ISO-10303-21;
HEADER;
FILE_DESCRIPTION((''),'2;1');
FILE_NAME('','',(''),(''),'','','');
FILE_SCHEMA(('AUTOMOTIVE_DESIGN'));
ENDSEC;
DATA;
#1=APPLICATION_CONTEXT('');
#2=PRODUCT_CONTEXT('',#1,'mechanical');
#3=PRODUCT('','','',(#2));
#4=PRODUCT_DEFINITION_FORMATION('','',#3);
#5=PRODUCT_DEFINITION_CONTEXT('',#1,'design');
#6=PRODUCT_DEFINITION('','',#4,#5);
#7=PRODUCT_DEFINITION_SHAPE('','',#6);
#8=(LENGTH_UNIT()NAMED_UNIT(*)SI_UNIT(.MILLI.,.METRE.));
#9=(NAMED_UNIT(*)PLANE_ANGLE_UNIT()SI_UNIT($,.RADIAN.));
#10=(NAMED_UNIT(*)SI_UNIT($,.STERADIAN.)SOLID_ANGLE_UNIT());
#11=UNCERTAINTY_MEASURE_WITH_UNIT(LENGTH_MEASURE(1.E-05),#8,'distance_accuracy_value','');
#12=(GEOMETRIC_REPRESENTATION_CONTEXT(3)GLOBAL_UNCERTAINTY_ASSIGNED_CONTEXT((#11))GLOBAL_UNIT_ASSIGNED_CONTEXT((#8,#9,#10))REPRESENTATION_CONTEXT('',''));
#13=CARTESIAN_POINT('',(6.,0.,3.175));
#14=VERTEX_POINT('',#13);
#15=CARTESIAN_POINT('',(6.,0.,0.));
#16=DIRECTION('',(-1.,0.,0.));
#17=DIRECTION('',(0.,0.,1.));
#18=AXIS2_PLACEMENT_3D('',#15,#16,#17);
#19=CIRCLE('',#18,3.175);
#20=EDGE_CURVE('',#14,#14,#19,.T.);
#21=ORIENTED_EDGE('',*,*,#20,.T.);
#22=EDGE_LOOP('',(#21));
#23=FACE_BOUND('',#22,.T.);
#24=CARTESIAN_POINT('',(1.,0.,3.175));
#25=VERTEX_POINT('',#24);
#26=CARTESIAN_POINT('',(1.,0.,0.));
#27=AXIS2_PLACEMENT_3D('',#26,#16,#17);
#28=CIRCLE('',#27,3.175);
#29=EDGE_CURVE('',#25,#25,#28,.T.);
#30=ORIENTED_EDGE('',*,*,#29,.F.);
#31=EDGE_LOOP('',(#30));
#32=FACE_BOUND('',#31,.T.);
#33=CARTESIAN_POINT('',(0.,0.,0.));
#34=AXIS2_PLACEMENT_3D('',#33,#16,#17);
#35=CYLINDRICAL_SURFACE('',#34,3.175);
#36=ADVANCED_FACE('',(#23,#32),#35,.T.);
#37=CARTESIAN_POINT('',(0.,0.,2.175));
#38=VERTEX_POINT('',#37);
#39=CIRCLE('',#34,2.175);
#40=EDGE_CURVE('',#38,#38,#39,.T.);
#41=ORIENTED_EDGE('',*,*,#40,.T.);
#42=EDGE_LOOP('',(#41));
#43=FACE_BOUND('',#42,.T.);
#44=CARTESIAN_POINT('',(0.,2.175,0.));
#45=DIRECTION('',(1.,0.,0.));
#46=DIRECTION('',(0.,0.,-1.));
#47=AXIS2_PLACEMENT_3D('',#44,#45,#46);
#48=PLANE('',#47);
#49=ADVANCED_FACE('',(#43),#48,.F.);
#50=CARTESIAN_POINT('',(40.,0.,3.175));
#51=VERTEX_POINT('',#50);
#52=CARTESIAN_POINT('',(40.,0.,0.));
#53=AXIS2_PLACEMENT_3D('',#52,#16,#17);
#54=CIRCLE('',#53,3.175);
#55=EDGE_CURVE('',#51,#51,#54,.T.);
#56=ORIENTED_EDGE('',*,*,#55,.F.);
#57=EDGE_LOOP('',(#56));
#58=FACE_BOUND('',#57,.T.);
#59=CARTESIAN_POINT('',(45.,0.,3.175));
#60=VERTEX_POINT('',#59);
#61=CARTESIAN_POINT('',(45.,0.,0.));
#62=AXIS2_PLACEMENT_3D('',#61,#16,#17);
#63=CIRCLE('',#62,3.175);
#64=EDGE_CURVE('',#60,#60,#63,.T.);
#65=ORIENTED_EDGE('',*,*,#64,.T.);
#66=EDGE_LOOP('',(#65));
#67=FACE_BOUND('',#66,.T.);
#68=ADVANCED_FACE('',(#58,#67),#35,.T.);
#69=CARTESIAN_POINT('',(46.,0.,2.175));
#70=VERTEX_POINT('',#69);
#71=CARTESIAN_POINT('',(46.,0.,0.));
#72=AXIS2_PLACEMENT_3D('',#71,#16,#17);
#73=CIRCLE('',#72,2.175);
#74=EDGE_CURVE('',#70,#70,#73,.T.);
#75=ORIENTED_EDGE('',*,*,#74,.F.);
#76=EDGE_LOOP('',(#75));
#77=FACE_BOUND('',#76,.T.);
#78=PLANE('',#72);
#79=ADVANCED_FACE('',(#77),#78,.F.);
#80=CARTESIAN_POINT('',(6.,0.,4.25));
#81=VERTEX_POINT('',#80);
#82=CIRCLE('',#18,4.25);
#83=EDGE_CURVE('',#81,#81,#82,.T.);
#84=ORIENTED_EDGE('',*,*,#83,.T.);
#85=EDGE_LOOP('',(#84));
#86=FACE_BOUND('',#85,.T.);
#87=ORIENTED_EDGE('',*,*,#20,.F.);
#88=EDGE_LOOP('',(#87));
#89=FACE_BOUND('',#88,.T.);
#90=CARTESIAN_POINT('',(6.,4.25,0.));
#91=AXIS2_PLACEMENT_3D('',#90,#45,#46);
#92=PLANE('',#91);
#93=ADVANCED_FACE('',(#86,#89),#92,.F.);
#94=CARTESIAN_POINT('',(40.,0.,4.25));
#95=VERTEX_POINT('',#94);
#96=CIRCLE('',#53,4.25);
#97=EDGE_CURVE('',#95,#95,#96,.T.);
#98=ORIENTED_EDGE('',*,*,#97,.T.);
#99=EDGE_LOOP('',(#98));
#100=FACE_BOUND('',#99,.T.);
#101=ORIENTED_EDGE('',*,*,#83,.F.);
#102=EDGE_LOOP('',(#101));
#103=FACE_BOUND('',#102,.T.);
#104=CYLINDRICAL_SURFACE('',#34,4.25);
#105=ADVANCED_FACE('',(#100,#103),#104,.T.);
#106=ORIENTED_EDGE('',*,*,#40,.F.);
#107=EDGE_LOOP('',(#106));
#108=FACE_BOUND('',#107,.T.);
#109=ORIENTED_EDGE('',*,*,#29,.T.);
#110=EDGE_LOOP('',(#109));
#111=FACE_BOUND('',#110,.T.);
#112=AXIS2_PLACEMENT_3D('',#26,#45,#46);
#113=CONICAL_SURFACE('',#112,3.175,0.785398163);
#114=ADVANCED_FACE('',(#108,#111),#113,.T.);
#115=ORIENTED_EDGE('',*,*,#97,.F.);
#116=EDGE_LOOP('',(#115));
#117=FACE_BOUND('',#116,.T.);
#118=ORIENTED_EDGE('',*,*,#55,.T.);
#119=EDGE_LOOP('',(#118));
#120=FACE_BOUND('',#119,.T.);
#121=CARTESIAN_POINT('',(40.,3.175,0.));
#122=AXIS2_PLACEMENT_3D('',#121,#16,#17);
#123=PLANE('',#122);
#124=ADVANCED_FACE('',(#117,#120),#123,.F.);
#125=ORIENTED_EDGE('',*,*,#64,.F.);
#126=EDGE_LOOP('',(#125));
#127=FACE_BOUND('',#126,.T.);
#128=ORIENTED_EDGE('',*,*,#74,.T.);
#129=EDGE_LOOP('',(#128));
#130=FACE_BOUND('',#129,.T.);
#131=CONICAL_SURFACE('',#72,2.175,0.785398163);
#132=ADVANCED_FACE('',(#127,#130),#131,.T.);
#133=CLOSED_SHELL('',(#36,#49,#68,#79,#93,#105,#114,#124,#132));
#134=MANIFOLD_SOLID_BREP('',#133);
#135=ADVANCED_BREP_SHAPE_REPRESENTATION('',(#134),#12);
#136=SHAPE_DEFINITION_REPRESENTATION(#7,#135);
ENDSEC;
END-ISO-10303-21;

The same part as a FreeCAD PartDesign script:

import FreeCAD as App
import Part
import Sketcher
Q = App.Units.Quantity

doc = App.newDocument("Part")
body = doc.addObject("PartDesign::Body", "Body")

# Sketch on XY plane
sketch1 = doc.addObject("Sketcher::SketchObject", "Sketch")
body.addObject(sketch1)
sketch1.AttachmentSupport = (doc.XY_Plane, [""])
sketch1.MapMode = "FlatFace"
sketch1.addGeometry(Part.LineSegment(App.Vector(0, 0, 0), App.Vector(46, 0, 0)), False)
sketch1.addGeometry(Part.LineSegment(App.Vector(46, 0, 0), App.Vector(46, 2.175, 0)), False)
sketch1.addGeometry(Part.LineSegment(App.Vector(46, 2.175, 0), App.Vector(45, 3.175, 0)), False)
sketch1.addGeometry(Part.LineSegment(App.Vector(45, 3.175, 0), App.Vector(40, 3.175, 0)), False)
sketch1.addGeometry(Part.LineSegment(App.Vector(40, 3.175, 0), App.Vector(40, 4.25, 0)), False)
sketch1.addGeometry(Part.LineSegment(App.Vector(40, 4.25, 0), App.Vector(6, 4.25, 0)), False)
sketch1.addGeometry(Part.LineSegment(App.Vector(6, 4.25, 0), App.Vector(6, 3.175, 0)), False)
sketch1.addGeometry(Part.LineSegment(App.Vector(6, 3.175, 0), App.Vector(1, 3.175, 0)), False)
sketch1.addGeometry(Part.LineSegment(App.Vector(1, 3.175, 0), App.Vector(0, 2.175, 0)), False)
sketch1.addGeometry(Part.LineSegment(App.Vector(0, 2.175, 0), App.Vector(0, 0, 0)), False)
sketch1.addConstraint(Sketcher.Constraint("Coincident", 0, 2, 1, 1))
sketch1.addConstraint(Sketcher.Constraint("Coincident", 1, 2, 2, 1))
sketch1.addConstraint(Sketcher.Constraint("Coincident", 2, 2, 3, 1))
sketch1.addConstraint(Sketcher.Constraint("Coincident", 3, 2, 4, 1))
sketch1.addConstraint(Sketcher.Constraint("Coincident", 4, 2, 5, 1))
sketch1.addConstraint(Sketcher.Constraint("Coincident", 5, 2, 6, 1))
sketch1.addConstraint(Sketcher.Constraint("Coincident", 6, 2, 7, 1))
sketch1.addConstraint(Sketcher.Constraint("Coincident", 7, 2, 8, 1))
sketch1.addConstraint(Sketcher.Constraint("Coincident", 8, 2, 9, 1))
sketch1.addConstraint(Sketcher.Constraint("Coincident", 9, 2, 0, 1))
sketch1.addConstraint(Sketcher.Constraint("Horizontal", 0))
sketch1.addConstraint(Sketcher.Constraint("Vertical", 1))
sketch1.addConstraint(Sketcher.Constraint("Horizontal", 3))
sketch1.addConstraint(Sketcher.Constraint("Vertical", 4))
sketch1.addConstraint(Sketcher.Constraint("Horizontal", 5))
sketch1.addConstraint(Sketcher.Constraint("Vertical", 6))
sketch1.addConstraint(Sketcher.Constraint("Horizontal", 7))
sketch1.addConstraint(Sketcher.Constraint("Vertical", 9))
sketch1.addConstraint(Sketcher.Constraint("Coincident", 9, 2, -1, 1))
sketch1.addConstraint(Sketcher.Constraint("Perpendicular", 2, 8))
sketch1.addConstraint(Sketcher.Constraint("Horizontal", 3, 2, 6, 2))
sketch1.addConstraint(Sketcher.Constraint("Horizontal", 1, 2, 8, 2))
sketch1.addConstraint(Sketcher.Constraint("Equal", 3, 7))
sketch1.addConstraint(Sketcher.Constraint("Equal", 2, 8))
sketch1.addConstraint(Sketcher.Constraint("DistanceX", 0, 1, 0, 2, Q("46 mm")))
sketch1.addConstraint(Sketcher.Constraint("DistanceX", 3, 2, 3, 1, Q("5 mm")))
sketch1.addConstraint(Sketcher.Constraint("DistanceX", 5, 2, 5, 1, Q("34 mm")))
sketch1.addConstraint(Sketcher.Constraint("DistanceY", 1, 1, 1, 2, Q("2.175 mm")))
sketch1.addConstraint(Sketcher.Constraint("DistanceY", 4, 1, 4, 2, Q("1.075 mm")))
revolution = doc.addObject("PartDesign::Revolution", "Revolution")
body.addObject(revolution)
revolution.Profile = sketch1
revolution.ReferenceAxis = (sketch1, ["H_Axis"])
revolution.Angle = 360

doc.recompute()
